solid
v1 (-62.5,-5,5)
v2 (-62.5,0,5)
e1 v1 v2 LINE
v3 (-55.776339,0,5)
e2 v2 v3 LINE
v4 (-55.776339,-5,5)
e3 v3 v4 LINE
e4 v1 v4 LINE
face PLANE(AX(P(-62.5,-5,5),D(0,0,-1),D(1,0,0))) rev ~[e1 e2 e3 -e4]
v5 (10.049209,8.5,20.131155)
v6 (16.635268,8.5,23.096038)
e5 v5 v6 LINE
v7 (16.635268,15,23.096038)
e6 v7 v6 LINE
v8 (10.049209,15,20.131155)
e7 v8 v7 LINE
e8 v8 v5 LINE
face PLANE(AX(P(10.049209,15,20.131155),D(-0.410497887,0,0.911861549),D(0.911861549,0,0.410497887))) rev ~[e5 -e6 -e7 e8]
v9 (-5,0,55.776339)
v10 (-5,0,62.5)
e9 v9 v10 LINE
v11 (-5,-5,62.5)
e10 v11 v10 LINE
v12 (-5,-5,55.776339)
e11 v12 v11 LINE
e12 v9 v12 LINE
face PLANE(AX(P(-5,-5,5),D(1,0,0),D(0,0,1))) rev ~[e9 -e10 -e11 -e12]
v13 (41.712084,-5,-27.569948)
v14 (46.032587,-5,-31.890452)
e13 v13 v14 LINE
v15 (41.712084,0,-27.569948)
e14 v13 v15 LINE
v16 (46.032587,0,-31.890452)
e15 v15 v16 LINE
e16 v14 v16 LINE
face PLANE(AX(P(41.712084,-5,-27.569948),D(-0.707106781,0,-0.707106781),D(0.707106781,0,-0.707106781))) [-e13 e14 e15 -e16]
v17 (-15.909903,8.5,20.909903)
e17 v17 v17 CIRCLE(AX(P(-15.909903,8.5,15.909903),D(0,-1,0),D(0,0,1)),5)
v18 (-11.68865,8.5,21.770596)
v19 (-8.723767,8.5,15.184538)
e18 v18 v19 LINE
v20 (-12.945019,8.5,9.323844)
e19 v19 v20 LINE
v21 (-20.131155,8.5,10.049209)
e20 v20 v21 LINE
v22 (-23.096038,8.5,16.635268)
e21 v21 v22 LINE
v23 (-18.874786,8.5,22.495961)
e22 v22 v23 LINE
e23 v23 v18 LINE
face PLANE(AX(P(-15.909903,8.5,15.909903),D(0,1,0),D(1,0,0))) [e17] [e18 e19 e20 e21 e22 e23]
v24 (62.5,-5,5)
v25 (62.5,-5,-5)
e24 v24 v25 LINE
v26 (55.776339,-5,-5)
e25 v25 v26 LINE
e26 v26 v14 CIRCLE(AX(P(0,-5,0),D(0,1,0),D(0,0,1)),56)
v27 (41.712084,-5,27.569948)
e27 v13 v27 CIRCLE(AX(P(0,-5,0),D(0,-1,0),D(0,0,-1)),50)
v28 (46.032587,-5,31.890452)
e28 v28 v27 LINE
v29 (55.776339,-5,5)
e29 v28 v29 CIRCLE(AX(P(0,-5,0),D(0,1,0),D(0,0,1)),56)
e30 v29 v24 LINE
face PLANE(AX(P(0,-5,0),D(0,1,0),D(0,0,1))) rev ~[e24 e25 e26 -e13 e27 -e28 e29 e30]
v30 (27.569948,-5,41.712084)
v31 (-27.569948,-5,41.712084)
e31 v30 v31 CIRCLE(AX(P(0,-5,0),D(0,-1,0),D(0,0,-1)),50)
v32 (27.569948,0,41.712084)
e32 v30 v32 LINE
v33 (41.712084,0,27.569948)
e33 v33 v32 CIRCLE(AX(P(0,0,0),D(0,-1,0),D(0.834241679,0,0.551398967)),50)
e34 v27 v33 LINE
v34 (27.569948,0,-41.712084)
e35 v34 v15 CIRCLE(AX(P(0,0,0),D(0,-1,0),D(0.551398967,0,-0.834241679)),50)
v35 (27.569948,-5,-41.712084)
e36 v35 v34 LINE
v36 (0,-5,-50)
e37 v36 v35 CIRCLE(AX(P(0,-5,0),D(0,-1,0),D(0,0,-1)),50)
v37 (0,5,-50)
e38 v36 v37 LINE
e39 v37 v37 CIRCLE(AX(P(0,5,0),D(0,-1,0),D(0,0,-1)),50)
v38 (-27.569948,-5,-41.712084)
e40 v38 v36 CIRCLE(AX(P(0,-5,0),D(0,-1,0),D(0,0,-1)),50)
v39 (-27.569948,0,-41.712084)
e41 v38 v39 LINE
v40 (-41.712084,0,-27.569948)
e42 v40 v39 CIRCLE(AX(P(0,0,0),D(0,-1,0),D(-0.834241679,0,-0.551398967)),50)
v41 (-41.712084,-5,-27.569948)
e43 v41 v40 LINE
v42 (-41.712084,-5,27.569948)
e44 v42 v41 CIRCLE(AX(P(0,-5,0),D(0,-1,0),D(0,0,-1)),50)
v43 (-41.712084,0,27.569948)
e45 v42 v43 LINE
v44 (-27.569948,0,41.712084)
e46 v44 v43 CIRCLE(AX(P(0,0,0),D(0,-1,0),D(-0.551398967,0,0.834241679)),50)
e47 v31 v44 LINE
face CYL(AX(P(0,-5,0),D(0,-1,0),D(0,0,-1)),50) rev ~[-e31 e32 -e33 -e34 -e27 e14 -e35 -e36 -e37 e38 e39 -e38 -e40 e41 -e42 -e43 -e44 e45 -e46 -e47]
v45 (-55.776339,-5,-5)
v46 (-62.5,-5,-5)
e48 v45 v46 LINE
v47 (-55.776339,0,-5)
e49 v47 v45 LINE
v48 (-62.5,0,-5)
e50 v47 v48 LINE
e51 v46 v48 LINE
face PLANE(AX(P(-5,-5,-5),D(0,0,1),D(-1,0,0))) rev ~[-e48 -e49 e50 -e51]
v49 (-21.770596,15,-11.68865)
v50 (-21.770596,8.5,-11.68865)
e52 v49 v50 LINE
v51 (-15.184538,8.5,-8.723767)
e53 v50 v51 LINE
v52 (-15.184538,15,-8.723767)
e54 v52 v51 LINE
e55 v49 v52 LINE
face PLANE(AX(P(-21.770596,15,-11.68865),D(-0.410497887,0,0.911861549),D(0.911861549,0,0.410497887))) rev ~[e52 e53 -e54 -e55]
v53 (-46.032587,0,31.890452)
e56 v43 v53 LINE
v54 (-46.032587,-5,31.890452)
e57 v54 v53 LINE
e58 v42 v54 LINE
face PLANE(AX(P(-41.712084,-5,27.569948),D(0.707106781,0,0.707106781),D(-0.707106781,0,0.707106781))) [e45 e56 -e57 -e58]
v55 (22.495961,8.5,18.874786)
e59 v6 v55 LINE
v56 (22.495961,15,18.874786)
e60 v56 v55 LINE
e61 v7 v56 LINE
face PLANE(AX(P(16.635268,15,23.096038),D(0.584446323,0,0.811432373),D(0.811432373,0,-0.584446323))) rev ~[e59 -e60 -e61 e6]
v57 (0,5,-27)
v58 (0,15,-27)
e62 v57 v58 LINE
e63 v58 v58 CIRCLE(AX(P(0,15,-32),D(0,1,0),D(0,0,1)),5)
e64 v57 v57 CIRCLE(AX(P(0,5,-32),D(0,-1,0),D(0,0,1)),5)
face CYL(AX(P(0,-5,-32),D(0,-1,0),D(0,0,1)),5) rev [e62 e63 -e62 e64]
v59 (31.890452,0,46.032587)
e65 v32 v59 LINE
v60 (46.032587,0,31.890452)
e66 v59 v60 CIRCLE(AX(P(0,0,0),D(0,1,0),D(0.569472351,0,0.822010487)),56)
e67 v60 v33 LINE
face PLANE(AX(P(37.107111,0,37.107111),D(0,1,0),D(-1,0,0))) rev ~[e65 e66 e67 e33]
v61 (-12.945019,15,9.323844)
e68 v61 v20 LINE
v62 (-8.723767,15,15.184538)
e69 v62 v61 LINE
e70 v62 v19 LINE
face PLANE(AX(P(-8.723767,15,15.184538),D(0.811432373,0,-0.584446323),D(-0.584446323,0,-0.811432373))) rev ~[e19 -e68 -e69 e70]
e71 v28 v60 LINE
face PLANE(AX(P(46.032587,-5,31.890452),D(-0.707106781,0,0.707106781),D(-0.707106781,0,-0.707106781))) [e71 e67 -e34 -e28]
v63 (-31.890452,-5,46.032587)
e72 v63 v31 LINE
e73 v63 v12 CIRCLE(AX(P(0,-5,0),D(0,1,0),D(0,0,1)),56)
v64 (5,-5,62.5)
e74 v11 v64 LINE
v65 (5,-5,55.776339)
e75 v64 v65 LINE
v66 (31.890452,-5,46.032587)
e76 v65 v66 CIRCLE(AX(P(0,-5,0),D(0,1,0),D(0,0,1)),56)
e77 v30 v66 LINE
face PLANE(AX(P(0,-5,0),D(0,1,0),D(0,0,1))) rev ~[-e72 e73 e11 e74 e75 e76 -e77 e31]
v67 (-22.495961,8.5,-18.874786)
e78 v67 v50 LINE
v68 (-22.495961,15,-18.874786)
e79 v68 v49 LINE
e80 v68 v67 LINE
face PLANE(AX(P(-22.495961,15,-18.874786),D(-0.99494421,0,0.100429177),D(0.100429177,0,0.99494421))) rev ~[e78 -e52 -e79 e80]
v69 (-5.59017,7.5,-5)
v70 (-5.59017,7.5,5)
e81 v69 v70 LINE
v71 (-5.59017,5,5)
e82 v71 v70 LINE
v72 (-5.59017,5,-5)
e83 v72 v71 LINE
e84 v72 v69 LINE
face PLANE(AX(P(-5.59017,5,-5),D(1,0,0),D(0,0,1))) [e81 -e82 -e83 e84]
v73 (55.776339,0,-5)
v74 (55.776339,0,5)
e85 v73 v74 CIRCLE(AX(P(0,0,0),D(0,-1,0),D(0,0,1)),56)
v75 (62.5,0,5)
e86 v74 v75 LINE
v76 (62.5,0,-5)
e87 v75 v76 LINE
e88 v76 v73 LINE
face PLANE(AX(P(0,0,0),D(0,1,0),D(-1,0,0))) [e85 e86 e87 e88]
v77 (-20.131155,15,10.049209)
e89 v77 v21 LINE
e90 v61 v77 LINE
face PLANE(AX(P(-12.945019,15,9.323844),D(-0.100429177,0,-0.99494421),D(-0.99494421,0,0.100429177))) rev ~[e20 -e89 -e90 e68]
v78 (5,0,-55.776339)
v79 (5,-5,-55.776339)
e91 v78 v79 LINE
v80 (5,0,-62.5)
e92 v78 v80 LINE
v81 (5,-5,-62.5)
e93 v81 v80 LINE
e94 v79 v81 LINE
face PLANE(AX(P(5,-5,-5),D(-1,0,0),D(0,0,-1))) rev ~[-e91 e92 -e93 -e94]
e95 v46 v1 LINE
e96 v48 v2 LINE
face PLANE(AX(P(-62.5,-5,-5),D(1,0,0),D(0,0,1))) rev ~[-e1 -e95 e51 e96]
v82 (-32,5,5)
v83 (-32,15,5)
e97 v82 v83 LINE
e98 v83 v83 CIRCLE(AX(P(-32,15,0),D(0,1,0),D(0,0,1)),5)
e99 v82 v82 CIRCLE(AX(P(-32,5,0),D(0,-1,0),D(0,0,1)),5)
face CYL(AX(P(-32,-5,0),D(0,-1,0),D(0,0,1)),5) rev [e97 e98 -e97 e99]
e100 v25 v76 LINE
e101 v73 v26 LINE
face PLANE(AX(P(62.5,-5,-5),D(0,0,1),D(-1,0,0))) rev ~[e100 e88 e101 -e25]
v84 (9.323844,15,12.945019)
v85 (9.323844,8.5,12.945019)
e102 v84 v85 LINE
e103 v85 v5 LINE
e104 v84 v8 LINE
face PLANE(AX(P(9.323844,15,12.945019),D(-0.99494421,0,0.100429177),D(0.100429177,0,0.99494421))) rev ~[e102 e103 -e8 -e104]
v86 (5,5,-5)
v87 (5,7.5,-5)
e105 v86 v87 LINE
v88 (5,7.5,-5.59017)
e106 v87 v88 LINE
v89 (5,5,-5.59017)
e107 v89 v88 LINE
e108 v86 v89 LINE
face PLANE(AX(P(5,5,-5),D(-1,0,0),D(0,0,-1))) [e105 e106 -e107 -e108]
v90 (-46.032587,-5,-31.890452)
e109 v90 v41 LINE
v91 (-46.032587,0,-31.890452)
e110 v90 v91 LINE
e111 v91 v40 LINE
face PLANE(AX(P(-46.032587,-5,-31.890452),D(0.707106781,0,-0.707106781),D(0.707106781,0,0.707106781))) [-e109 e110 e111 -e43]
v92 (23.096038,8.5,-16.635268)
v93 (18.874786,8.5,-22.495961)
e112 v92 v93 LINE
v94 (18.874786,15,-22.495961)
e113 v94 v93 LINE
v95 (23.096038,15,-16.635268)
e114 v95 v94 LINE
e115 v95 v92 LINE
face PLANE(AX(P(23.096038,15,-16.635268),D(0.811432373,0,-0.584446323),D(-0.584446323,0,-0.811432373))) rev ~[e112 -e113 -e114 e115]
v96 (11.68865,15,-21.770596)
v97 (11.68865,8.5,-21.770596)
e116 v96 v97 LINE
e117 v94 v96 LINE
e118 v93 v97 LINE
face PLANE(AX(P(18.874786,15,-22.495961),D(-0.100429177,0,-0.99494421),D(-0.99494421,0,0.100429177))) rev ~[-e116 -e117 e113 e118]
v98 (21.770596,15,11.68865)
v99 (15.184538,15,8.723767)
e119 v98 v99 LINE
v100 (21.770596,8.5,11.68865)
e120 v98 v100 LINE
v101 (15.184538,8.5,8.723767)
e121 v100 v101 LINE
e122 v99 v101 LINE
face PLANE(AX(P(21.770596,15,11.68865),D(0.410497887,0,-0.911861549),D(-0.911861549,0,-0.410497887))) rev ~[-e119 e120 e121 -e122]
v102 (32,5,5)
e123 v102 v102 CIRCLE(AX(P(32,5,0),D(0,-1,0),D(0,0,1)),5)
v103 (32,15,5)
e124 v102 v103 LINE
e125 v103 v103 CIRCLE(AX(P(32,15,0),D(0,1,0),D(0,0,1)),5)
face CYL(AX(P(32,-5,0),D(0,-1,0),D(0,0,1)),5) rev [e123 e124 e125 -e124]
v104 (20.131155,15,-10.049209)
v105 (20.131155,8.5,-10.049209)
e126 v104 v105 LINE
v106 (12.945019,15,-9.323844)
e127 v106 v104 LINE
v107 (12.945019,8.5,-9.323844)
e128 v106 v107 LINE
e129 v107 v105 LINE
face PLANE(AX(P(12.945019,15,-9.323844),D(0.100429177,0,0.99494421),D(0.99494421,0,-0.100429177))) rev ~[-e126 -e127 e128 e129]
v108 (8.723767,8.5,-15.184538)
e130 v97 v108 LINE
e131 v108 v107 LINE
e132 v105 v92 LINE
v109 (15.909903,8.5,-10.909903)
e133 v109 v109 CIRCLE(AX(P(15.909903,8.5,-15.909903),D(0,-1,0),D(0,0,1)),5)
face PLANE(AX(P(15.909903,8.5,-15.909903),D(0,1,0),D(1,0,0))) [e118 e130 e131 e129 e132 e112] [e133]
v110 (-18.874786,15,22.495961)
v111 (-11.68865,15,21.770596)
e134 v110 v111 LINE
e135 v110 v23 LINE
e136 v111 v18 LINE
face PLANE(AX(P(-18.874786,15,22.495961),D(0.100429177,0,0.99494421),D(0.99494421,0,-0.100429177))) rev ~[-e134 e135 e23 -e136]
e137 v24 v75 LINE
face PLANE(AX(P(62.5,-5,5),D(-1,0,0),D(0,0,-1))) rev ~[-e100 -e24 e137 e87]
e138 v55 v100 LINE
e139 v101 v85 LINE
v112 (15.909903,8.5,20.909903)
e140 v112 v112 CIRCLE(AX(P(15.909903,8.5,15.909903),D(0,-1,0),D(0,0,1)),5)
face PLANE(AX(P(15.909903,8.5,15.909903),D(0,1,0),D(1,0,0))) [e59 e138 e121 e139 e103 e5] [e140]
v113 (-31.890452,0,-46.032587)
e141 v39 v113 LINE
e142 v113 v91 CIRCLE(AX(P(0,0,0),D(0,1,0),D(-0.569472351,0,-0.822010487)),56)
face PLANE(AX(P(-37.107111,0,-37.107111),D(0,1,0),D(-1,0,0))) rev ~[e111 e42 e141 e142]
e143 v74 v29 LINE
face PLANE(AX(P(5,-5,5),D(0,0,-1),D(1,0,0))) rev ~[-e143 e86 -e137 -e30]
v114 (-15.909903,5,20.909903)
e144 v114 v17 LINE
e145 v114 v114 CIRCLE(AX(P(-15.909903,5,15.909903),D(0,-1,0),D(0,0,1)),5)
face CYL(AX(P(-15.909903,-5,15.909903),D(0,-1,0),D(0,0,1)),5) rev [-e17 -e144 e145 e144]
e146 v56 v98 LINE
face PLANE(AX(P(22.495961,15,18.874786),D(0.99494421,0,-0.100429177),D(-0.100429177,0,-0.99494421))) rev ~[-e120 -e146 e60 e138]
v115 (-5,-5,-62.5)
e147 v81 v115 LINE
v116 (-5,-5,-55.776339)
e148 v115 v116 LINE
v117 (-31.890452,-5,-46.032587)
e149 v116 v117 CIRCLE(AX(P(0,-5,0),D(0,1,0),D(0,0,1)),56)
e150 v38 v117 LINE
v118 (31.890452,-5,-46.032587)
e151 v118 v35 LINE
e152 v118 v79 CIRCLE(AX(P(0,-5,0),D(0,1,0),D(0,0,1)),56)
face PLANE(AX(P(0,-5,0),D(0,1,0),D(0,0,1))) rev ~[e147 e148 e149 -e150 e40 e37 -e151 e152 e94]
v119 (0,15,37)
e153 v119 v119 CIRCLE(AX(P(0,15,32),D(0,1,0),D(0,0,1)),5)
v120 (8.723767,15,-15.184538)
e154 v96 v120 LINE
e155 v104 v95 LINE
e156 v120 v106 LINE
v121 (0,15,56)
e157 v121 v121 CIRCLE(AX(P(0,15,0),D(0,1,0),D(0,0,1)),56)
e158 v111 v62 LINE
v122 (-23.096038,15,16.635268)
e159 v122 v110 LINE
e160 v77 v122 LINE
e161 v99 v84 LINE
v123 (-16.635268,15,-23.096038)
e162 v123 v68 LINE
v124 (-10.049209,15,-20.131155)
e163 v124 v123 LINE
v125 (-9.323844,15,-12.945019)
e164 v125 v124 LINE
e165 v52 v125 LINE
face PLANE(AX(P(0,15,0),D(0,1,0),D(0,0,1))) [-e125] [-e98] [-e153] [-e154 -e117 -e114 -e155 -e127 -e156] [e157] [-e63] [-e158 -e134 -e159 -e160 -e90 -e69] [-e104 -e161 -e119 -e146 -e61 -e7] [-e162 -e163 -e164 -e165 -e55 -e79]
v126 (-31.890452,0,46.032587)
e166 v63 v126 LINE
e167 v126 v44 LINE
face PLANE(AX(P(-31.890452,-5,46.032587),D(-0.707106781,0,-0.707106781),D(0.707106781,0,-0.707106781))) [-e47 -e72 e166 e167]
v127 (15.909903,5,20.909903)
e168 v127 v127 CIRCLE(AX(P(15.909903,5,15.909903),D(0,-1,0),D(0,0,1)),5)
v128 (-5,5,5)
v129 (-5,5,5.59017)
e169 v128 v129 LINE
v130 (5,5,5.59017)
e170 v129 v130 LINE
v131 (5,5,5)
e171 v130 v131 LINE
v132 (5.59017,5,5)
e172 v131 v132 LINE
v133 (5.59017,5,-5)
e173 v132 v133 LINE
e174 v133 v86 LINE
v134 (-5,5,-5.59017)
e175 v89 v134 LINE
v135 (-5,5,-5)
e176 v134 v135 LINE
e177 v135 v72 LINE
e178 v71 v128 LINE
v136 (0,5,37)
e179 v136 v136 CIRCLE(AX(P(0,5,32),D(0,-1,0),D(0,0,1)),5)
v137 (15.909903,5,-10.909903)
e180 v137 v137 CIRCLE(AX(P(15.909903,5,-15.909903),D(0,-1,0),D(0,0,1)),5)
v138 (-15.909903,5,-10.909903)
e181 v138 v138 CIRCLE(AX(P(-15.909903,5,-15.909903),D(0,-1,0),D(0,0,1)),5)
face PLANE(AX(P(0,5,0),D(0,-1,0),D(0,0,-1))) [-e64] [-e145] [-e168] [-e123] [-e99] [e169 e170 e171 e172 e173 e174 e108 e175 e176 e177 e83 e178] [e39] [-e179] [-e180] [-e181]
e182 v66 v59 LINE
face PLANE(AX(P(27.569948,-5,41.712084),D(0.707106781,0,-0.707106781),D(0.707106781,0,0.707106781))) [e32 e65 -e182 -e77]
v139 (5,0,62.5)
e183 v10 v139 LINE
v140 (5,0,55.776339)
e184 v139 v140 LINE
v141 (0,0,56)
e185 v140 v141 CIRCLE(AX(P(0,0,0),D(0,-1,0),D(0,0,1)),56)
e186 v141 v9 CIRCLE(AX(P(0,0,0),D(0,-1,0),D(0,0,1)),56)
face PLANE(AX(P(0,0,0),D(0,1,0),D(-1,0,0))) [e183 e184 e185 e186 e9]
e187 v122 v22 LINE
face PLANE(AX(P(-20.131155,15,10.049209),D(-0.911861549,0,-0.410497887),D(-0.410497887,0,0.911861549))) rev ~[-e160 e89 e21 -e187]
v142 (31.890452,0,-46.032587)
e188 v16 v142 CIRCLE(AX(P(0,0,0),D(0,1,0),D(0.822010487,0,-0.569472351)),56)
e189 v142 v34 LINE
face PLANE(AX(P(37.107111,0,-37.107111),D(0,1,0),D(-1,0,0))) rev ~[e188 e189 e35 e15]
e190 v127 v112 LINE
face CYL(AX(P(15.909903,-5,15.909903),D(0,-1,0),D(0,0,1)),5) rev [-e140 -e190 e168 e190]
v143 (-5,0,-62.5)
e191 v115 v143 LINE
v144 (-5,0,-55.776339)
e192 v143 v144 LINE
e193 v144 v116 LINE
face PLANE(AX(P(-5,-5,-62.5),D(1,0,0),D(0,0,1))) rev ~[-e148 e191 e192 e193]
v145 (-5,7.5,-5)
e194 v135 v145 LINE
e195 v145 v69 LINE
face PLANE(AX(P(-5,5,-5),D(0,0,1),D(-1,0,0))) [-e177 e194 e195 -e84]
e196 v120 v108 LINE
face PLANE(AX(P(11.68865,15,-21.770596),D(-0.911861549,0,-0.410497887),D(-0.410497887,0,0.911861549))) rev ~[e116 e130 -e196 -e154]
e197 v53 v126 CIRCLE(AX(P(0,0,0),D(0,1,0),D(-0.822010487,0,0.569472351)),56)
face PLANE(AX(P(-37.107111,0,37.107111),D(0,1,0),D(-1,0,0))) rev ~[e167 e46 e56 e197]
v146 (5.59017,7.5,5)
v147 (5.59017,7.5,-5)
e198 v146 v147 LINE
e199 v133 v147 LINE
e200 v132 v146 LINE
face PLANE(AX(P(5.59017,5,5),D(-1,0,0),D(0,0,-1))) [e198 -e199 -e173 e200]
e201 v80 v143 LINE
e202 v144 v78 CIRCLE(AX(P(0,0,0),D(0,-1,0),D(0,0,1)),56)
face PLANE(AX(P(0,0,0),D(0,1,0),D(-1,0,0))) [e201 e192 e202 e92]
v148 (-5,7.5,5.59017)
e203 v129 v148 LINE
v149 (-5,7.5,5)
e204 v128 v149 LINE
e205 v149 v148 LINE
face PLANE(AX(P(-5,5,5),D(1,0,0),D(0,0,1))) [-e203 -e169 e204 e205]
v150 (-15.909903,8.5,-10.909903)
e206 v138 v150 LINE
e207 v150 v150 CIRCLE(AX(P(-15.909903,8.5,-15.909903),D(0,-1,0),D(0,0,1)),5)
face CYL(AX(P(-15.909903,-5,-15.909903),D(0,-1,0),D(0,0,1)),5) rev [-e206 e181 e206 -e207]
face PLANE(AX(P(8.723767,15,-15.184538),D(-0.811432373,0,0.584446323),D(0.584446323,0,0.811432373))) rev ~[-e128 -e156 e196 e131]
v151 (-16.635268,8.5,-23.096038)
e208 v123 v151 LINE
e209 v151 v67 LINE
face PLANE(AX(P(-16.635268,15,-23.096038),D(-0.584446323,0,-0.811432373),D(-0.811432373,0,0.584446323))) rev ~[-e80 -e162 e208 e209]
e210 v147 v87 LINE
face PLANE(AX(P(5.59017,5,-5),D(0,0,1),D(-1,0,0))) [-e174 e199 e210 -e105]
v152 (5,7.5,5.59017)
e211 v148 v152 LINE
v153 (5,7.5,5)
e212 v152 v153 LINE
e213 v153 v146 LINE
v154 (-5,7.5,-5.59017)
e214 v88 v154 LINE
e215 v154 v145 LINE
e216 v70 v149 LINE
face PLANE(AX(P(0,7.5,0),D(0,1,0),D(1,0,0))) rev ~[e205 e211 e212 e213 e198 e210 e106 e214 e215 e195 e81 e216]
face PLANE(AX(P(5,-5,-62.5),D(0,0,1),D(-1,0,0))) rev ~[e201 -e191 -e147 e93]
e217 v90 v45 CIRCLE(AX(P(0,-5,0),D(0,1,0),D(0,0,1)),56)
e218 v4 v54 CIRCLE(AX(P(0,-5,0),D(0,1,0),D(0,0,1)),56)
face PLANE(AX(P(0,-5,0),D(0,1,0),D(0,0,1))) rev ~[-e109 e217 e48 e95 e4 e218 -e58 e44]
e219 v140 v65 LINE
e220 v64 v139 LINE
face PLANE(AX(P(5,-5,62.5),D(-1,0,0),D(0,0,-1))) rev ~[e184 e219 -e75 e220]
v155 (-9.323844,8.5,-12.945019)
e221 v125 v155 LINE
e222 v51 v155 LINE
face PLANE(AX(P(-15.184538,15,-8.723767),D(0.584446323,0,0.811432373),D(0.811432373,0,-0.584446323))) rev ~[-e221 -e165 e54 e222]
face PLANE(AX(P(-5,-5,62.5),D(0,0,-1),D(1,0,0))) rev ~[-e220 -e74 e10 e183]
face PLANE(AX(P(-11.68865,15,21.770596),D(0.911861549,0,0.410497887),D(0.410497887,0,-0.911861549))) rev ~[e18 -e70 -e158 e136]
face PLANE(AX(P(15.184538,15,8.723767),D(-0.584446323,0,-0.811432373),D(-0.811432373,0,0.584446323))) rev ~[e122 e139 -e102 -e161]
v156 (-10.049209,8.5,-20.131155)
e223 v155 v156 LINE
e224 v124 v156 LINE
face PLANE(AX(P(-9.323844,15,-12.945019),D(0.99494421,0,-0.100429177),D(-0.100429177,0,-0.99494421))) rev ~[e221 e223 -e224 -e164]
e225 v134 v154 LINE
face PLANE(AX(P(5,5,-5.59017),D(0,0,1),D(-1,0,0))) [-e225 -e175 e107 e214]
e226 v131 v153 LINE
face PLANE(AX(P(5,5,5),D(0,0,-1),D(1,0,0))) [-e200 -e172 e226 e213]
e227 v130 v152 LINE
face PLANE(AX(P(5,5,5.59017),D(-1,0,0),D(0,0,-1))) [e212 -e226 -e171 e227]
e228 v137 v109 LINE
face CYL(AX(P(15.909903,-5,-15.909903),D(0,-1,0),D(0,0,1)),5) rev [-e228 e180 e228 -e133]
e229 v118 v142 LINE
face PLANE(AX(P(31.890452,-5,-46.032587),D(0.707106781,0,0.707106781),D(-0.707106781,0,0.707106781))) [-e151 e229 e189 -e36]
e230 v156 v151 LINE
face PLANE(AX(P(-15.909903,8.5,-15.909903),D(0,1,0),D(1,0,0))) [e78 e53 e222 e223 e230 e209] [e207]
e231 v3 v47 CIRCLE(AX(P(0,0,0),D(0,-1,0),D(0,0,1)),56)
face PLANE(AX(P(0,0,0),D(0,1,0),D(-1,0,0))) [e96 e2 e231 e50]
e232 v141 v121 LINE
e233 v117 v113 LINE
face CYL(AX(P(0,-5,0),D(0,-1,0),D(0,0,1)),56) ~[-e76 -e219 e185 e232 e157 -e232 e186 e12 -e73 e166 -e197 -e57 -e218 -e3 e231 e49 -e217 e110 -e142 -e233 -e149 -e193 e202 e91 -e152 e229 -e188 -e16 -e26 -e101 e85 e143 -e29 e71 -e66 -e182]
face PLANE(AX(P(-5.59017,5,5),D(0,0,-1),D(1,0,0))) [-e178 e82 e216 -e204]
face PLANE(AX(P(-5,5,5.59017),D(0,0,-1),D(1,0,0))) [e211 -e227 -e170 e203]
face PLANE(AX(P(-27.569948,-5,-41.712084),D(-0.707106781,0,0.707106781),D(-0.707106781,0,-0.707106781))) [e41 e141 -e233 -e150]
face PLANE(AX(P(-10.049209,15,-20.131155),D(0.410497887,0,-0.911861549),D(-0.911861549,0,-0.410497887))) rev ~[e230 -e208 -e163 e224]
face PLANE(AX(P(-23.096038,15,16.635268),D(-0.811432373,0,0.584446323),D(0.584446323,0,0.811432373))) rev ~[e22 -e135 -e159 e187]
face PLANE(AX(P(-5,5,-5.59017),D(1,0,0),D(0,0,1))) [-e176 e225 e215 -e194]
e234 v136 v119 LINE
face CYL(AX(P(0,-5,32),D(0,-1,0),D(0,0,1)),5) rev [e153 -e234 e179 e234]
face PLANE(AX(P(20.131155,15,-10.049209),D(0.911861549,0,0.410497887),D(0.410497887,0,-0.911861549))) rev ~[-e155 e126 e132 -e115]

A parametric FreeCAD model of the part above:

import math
import FreeCAD as App
import Part
import Sketcher
Q = App.Units.Quantity

doc = App.newDocument("Part")
params = doc.addObject("Spreadsheet::Sheet", "Params")
for row, (alias, value) in enumerate([
    ("sketch1_diameter", "112 mm"),
    ("sketch1_diameter2", "10 mm"),
    ("pad1_length", "15 mm"),
    ("pad1_length2", "5 mm"),
    ("sketch2_width", "10 mm"),
    ("sketch2_width2", "57.5 mm"),
    ("pad2_length", "5 mm"),
    ("sketch3_diameter", "100 mm"),
    ("pocket1_length", "10 mm"),
    ("sketch4_radius", "50 mm"),
    ("sketch4_radius2", "56 mm"),
    ("pocket2_length", "5 mm"),
    ("sketch5_width", "10 mm"),
    ("pocket3_length", "2.5 mm"),
    ("pocket4_length", "6.5 mm"),
], start=1):
    params.set(f"A{row}", alias)
    params.set(f"B{row}", "=" + value)
    params.setAlias(f"B{row}", alias)

body = doc.addObject("PartDesign::Body", "Body")

# Sketch on XZ plane
sketch1 = doc.addObject("Sketcher::SketchObject", "Sketch")
body.addObject(sketch1)
sketch1.AttachmentSupport = (doc.XZ_Plane, [""])
sketch1.MapMode = "FlatFace"
sketch1.addGeometry(Part.Circle(App.Vector(0, 0, 0), App.Vector(0, 0, 1), 56), False)
sketch1.addGeometry(Part.Circle(App.Vector(-16, -16, 0), App.Vector(0, 0, 1), 5), False)
sketch1.addGeometry(Part.Circle(App.Vector(-32, 0, 0), App.Vector(0, 0, 1), 5), False)
sketch1.addGeometry(Part.Circle(App.Vector(-16, 16, 0), App.Vector(0, 0, 1), 5), False)
sketch1.addGeometry(Part.Circle(App.Vector(0, -32, 0), App.Vector(0, 0, 1), 5), False)
sketch1.addGeometry(Part.Circle(App.Vector(16, -16, 0), App.Vector(0, 0, 1), 5), False)
sketch1.addGeometry(Part.Circle(App.Vector(32, 0, 0), App.Vector(0, 0, 1), 5), False)
sketch1.addGeometry(Part.Circle(App.Vector(16, 16, 0), App.Vector(0, 0, 1), 5), False)
sketch1.addGeometry(Part.Circle(App.Vector(0, 32, 0), App.Vector(0, 0, 1), 5), False)
sketch1.addConstraint(Sketcher.Constraint("Coincident", 0, 3, -1, 1))
sketch1.addConstraint(Sketcher.Constraint("Equal", 1, 2))
sketch1.addConstraint(Sketcher.Constraint("Equal", 2, 3))
sketch1.addConstraint(Sketcher.Constraint("Equal", 3, 4))
sketch1.addConstraint(Sketcher.Constraint("Equal", 4, 5))
sketch1.addConstraint(Sketcher.Constraint("Equal", 5, 6))
sketch1.addConstraint(Sketcher.Constraint("Equal", 6, 7))
sketch1.addConstraint(Sketcher.Constraint("Equal", 7, 8))
sketch1.addConstraint(Sketcher.Constraint("Symmetric", 3, 3, 5, 3, -1, 1))
sketch1.addConstraint(Sketcher.Constraint("Symmetric", 2, 3, 6, 3, -1, 1))
sketch1.addConstraint(Sketcher.Constraint("Symmetric", 1, 3, 7, 3, -1, 1))
sketch1.addConstraint(Sketcher.Constraint("Symmetric", 4, 3, 8, 3, -1, 1))
sketch1.addConstraint(Sketcher.Constraint("Symmetric", 1, 3, 5, 3, -2))
sketch1.addConstraint(Sketcher.Constraint("PointOnObject", 2, 3, -1))
sketch1.addConstraint(Sketcher.Constraint("PointOnObject", 4, 3, -2))
sketch1.addConstraint(Sketcher.Constraint("Diameter", 0, Q("112 mm")))
sketch1.addConstraint(Sketcher.Constraint("Diameter", 1, Q("10 mm")))
sketch1.addConstraint(Sketcher.Constraint("DistanceX", 2, 3, -1, 1, Q("32 mm")))
sketch1.addConstraint(Sketcher.Constraint("DistanceY", 4, 3, -1, 1, Q("32 mm")))
sketch1.addConstraint(Sketcher.Constraint("DistanceX", 1, 3, -1, 1, Q("15.909903 mm")))
sketch1.addConstraint(Sketcher.Constraint("DistanceY", 1, 3, -1, 1, Q("15.909903 mm")))
sketch1.setExpression("Constraints[15]", "Params.sketch1_diameter")
sketch1.setExpression("Constraints[16]", "Params.sketch1_diameter2")
pad1 = doc.addObject("PartDesign::Pad", "Pad")
body.addObject(pad1)
pad1.Profile = sketch1
pad1.Type = "TwoLengths"
pad1.setExpression("Length", "Params.pad1_length")
pad1.setExpression("Length2", "Params.pad1_length2")
pad1.Reversed = True

# Sketch on XZ plane
sketch2 = doc.addObject("Sketcher::SketchObject", "Sketch001")
body.addObject(sketch2)
sketch2.AttachmentSupport = (doc.XZ_Plane, [""])
sketch2.MapMode = "FlatFace"
sketch2.AttachmentOffset = App.Placement(App.Vector(0, 0, 5), App.Rotation())
sketch2.addGeometry(Part.LineSegment(App.Vector(-5, 62, 0), App.Vector(-5, 5, 0)), False)
sketch2.addGeometry(Part.LineSegment(App.Vector(-5, 5, 0), App.Vector(-62, 5, 0)), False)
sketch2.addGeometry(Part.LineSegment(App.Vector(-62, 5, 0), App.Vector(-62, -5, 0)), False)
sketch2.addGeometry(Part.LineSegment(App.Vector(-62, -5, 0), App.Vector(-5, -5, 0)), False)
sketch2.addGeometry(Part.LineSegment(App.Vector(-5, -5, 0), App.Vector(-5, -62, 0)), False)
sketch2.addGeometry(Part.LineSegment(App.Vector(-5, -62, 0), App.Vector(5, -62, 0)), False)
sketch2.addGeometry(Part.LineSegment(App.Vector(5, -62, 0), App.Vector(5, -5, 0)), False)
sketch2.addGeometry(Part.LineSegment(App.Vector(5, -5, 0), App.Vector(62, -5, 0)), False)
sketch2.addGeometry(Part.LineSegment(App.Vector(62, -5, 0), App.Vector(62, 5, 0)), False)
sketch2.addGeometry(Part.LineSegment(App.Vector(62, 5, 0), App.Vector(5, 5, 0)), False)
sketch2.addGeometry(Part.LineSegment(App.Vector(5, 5, 0), App.Vector(5, 62, 0)), False)
sketch2.addGeometry(Part.LineSegment(App.Vector(5, 62, 0), App.Vector(-5, 62, 0)), False)
sketch2.addConstraint(Sketcher.Constraint("Coincident", 0, 2, 1, 1))
sketch2.addConstraint(Sketcher.Constraint("Coincident", 1, 2, 2, 1))
sketch2.addConstraint(Sketcher.Constraint("Coincident", 2, 2, 3, 1))
sketch2.addConstraint(Sketcher.Constraint("Coincident", 3, 2, 4, 1))
sketch2.addConstraint(Sketcher.Constraint("Coincident", 4, 2, 5, 1))
sketch2.addConstraint(Sketcher.Constraint("Coincident", 5, 2, 6, 1))
sketch2.addConstraint(Sketcher.Constraint("Coincident", 6, 2, 7, 1))
sketch2.addConstraint(Sketcher.Constraint("Coincident", 7, 2, 8, 1))
sketch2.addConstraint(Sketcher.Constraint("Coincident", 8, 2, 9, 1))
sketch2.addConstraint(Sketcher.Constraint("Coincident", 9, 2, 10, 1))
sketch2.addConstraint(Sketcher.Constraint("Coincident", 10, 2, 11, 1))
sketch2.addConstraint(Sketcher.Constraint("Coincident", 11, 2, 0, 1))
sketch2.addConstraint(Sketcher.Constraint("Vertical", 0))
sketch2.addConstraint(Sketcher.Constraint("Horizontal", 1))
sketch2.addConstraint(Sketcher.Constraint("Vertical", 2))
sketch2.addConstraint(Sketcher.Constraint("Horizontal", 3))
sketch2.addConstraint(Sketcher.Constraint("Vertical", 4))
sketch2.addConstraint(Sketcher.Constraint("Horizontal", 5))
sketch2.addConstraint(Sketcher.Constraint("Vertical", 6))
sketch2.addConstraint(Sketcher.Constraint("Horizontal", 7))
sketch2.addConstraint(Sketcher.Constraint("Vertical", 8))
sketch2.addConstraint(Sketcher.Constraint("Horizontal", 9))
sketch2.addConstraint(Sketcher.Constraint("Vertical", 10))
sketch2.addConstraint(Sketcher.Constraint("Horizontal", 11))
sketch2.addConstraint(Sketcher.Constraint("Symmetric", 0, 2, 6, 2, -1, 1))
sketch2.addConstraint(Sketcher.Constraint("Symmetric", 2, 2, 8, 2, -1, 1))
sketch2.addConstraint(Sketcher.Constraint("Symmetric", 4, 2, 10, 2, -1, 1))
sketch2.addConstraint(Sketcher.Constraint("Symmetric", 3, 2, 6, 2, -2))
sketch2.addConstraint(Sketcher.Constraint("Equal", 9, 0))
sketch2.addConstraint(Sketcher.Constraint("Equal", 11, 2))
sketch2.addConstraint(Sketcher.Constraint("DistanceX", 5, 1, 5, 2, Q("10 mm")))
sketch2.addConstraint(Sketcher.Constraint("DistanceX", 1, 2, 1, 1, Q("57.5 mm")))
sketch2.setExpression("Constraints[30]", "Params.sketch2_width")
sketch2.setExpression("Constraints[31]", "Params.sketch2_width2")
pad2 = doc.addObject("PartDesign::Pad", "Pad001")
body.addObject(pad2)
pad2.Profile = sketch2
pad2.setExpression("Length", "Params.pad2_length")
pad2.Reversed = True

# Sketch on XZ plane
sketch3 = doc.addObject("Sketcher::SketchObject", "Sketch002")
body.addObject(sketch3)
sketch3.AttachmentSupport = (doc.XZ_Plane, [""])
sketch3.MapMode = "FlatFace"
sketch3.AttachmentOffset = App.Placement(App.Vector(0, 0, 5), App.Rotation())
sketch3.addGeometry(Part.Circle(App.Vector(0, 0, 0), App.Vector(0, 0, 1), 50), False)
sketch3.addConstraint(Sketcher.Constraint("Coincident", 0, 3, -1, 1))
sketch3.addConstraint(Sketcher.Constraint("Diameter", 0, Q("100 mm")))
sketch3.setExpression("Constraints[1]", "Params.sketch3_diameter")
pocket1 = doc.addObject("PartDesign::Pocket", "Pocket")
body.addObject(pocket1)
pocket1.Profile = sketch3
pocket1.setExpression("Length", "Params.pocket1_length")

# Sketch on XZ plane
sketch4 = doc.addObject("Sketcher::SketchObject", "Sketch003")
body.addObject(sketch4)
sketch4.AttachmentSupport = (doc.XZ_Plane, [""])
sketch4.MapMode = "FlatFace"
sketch4.AttachmentOffset = App.Placement(App.Vector(0, 0, 5), App.Rotation())
sketch4.addGeometry(Part.LineSegment(App.Vector(32, 46, 0), App.Vector(28, 42, 0)), False)
sketch4.addGeometry(Part.ArcOfCircle(Part.Circle(App.Vector(0, 0, 0), App.Vector(0, 0, 1), 50), math.radians(33), math.radians(57)), False)
sketch4.addGeometry(Part.LineSegment(App.Vector(42, 28, 0), App.Vector(46, 32, 0)), False)
sketch4.addGeometry(Part.ArcOfCircle(Part.Circle(App.Vector(0, 0, 0), App.Vector(0, 0, 1), 56), math.radians(35), math.radians(55)), False)
sketch4.addGeometry(Part.LineSegment(App.Vector(46, -32, 0), App.Vector(42, -28, 0)), False)
sketch4.addGeometry(Part.ArcOfCircle(Part.Circle(App.Vector(0, 0, 0), App.Vector(0, 0, 1), 50), math.radians(-57), math.radians(-33)), False)
sketch4.addGeometry(Part.LineSegment(App.Vector(28, -42, 0), App.Vector(32, -46, 0)), False)
sketch4.addGeometry(Part.ArcOfCircle(Part.Circle(App.Vector(0, 0, 0), App.Vector(0, 0, 1), 56), math.radians(-55), math.radians(-35)), False)
sketch4.addGeometry(Part.LineSegment(App.Vector(-32, -46, 0), App.Vector(-28, -42, 0)), False)
sketch4.addGeometry(Part.ArcOfCircle(Part.Circle(App.Vector(0, 0, 0), App.Vector(0, 0, 1), 50), math.radians(-147), math.radians(-123)), False)
sketch4.addGeometry(Part.LineSegment(App.Vector(-42, -28, 0), App.Vector(-46, -32, 0)), False)
sketch4.addGeometry(Part.ArcOfCircle(Part.Circle(App.Vector(0, 0, 0), App.Vector(0, 0, 1), 56), math.radians(-145), math.radians(-125)), False)
sketch4.addGeometry(Part.LineSegment(App.Vector(-46, 32, 0), App.Vector(-42, 28, 0)), False)
sketch4.addGeometry(Part.ArcOfCircle(Part.Circle(App.Vector(0, 0, 0), App.Vector(0, 0, 1), 50), math.radians(123), math.radians(147)), False)
sketch4.addGeometry(Part.LineSegment(App.Vector(-28, 42, 0), App.Vector(-32, 46, 0)), False)
sketch4.addGeometry(Part.ArcOfCircle(Part.Circle(App.Vector(0, 0, 0), App.Vector(0, 0, 1), 56), math.radians(125), math.radians(145)), False)
sketch4.addConstraint(Sketcher.Constraint("Coincident", 0, 2, 1, 2))
sketch4.addConstraint(Sketcher.Constraint("Coincident", 1, 1, 2, 1))
sketch4.addConstraint(Sketcher.Constraint("Coincident", 2, 2, 3, 1))
sketch4.addConstraint(Sketcher.Constraint("Coincident", 3, 2, 0, 1))
sketch4.addConstraint(Sketcher.Constraint("Coincident", 4, 2, 5, 2))
sketch4.addConstraint(Sketcher.Constraint("Coincident", 5, 1, 6, 1))
sketch4.addConstraint(Sketcher.Constraint("Coincident", 6, 2, 7, 1))
sketch4.addConstraint(Sketcher.Constraint("Coincident", 7, 2, 4, 1))
sketch4.addConstraint(Sketcher.Constraint("Coincident", 8, 2, 9, 2))
sketch4.addConstraint(Sketcher.Constraint("Coincident", 9, 1, 10, 1))
sketch4.addConstraint(Sketcher.Constraint("Coincident", 10, 2, 11, 1))
sketch4.addConstraint(Sketcher.Constraint("Coincident", 11, 2, 8, 1))
sketch4.addConstraint(Sketcher.Constraint("Coincident", 12, 2, 13, 2))
sketch4.addConstraint(Sketcher.Constraint("Coincident", 13, 1, 14, 1))
sketch4.addConstraint(Sketcher.Constraint("Coincident", 14, 2, 15, 1))
sketch4.addConstraint(Sketcher.Constraint("Coincident", 15, 2, 12, 1))
sketch4.addConstraint(Sketcher.Constraint("Coincident", 1, 3, -1, 1))
sketch4.addConstraint(Sketcher.Constraint("Coincident", 3, 3, -1, 1))
sketch4.addConstraint(Sketcher.Constraint("Coincident", 5, 3, -1, 1))
sketch4.addConstraint(Sketcher.Constraint("Coincident", 7, 3, -1, 1))
sketch4.addConstraint(Sketcher.Constraint("Coincident", 9, 3, -1, 1))
sketch4.addConstraint(Sketcher.Constraint("Coincident", 11, 3, -1, 1))
sketch4.addConstraint(Sketcher.Constraint("Coincident", 13, 3, -1, 1))
sketch4.addConstraint(Sketcher.Constraint("Coincident", 15, 3, -1, 1))
sketch4.addConstraint(Sketcher.Constraint("Equal", 1, 5))
sketch4.addConstraint(Sketcher.Constraint("Equal", 3, 7))
sketch4.addConstraint(Sketcher.Constraint("Equal", 5, 9))
sketch4.addConstraint(Sketcher.Constraint("Equal", 7, 11))
sketch4.addConstraint(Sketcher.Constraint("Equal", 9, 13))
sketch4.addConstraint(Sketcher.Constraint("Equal", 11, 15))
sketch4.addConstraint(Sketcher.Constraint("Parallel", 0, 2))
sketch4.addConstraint(Sketcher.Constraint("Perpendicular", 2, 4))
sketch4.addConstraint(Sketcher.Constraint("Parallel", 4, 6))
sketch4.addConstraint(Sketcher.Constraint("Perpendicular", 6, 8))
sketch4.addConstraint(Sketcher.Constraint("Parallel", 8, 10))
sketch4.addConstraint(Sketcher.Constraint("Perpendicular", 10, 12))
sketch4.addConstraint(Sketcher.Constraint("Parallel", 12, 14))
sketch4.addConstraint(Sketcher.Constraint("Horizontal", 5, 1, 8, 2))
sketch4.addConstraint(Sketcher.Constraint("Horizontal", 4, 2, 9, 1))
sketch4.addConstraint(Sketcher.Constraint("Horizontal", 7, 2, 10, 2))
sketch4.addConstraint(Sketcher.Constraint("Horizontal", 1, 1, 12, 2))
sketch4.addConstraint(Sketcher.Constraint("Horizontal", 0, 2, 13, 1))
sketch4.addConstraint(Sketcher.Constraint("Vertical", 1, 1, 4, 2))
sketch4.addConstraint(Sketcher.Constraint("Vertical", 0, 2, 5, 1))
sketch4.addConstraint(Sketcher.Constraint("Equal", 0, 2))
sketch4.addConstraint(Sketcher.Constraint("Radius", 1, Q("50 mm")))
sketch4.addConstraint(Sketcher.Constraint("Radius", 3, Q("56 mm")))
sketch4.addConstraint(Sketcher.Constraint("DistanceX", -1, 1, 0, 2, Q("27.569948 mm")))
sketch4.setExpression("Constraints[45]", "Params.sketch4_radius")
sketch4.setExpression("Constraints[46]", "Params.sketch4_radius2")
pocket2 = doc.addObject("PartDesign::Pocket", "Pocket001")
body.addObject(pocket2)
pocket2.Profile = sketch4
pocket2.setExpression("Length", "Params.pocket2_length")

# Sketch on XZ plane
sketch5 = doc.addObject("Sketcher::SketchObject", "Sketch004")
body.addObject(sketch5)
sketch5.AttachmentSupport = (doc.XZ_Plane, [""])
sketch5.MapMode = "FlatFace"
sketch5.AttachmentOffset = App.Placement(App.Vector(0, 0, -5), App.Rotation())
sketch5.addGeometry(Part.LineSegment(App.Vector(-5, -5, 0), App.Vector(-5.6, -5, 0)), False)
sketch5.addGeometry(Part.LineSegment(App.Vector(-5.6, -5, 0), App.Vector(-5.6, 5, 0)), False)
sketch5.addGeometry(Part.LineSegment(App.Vector(-5.6, 5, 0), App.Vector(-5, 5, 0)), False)
sketch5.addGeometry(Part.LineSegment(App.Vector(-5, 5, 0), App.Vector(-5, 5.6, 0)), False)
sketch5.addGeometry(Part.LineSegment(App.Vector(-5, 5.6, 0), App.Vector(5, 5.6, 0)), False)
sketch5.addGeometry(Part.LineSegment(App.Vector(5, 5.6, 0), App.Vector(5, 5, 0)), False)
sketch5.addGeometry(Part.LineSegment(App.Vector(5, 5, 0), App.Vector(5.6, 5, 0)), False)
sketch5.addGeometry(Part.LineSegment(App.Vector(5.6, 5, 0), App.Vector(5.6, -5, 0)), False)
sketch5.addGeometry(Part.LineSegment(App.Vector(5.6, -5, 0), App.Vector(5, -5, 0)), False)
sketch5.addGeometry(Part.LineSegment(App.Vector(5, -5, 0), App.Vector(5, -5.6, 0)), False)
sketch5.addGeometry(Part.LineSegment(App.Vector(5, -5.6, 0), App.Vector(-5, -5.6, 0)), False)
sketch5.addGeometry(Part.LineSegment(App.Vector(-5, -5.6, 0), App.Vector(-5, -5, 0)), False)
sketch5.addConstraint(Sketcher.Constraint("Coincident", 0, 2, 1, 1))
sketch5.addConstraint(Sketcher.Constraint("Coincident", 1, 2, 2, 1))
sketch5.addConstraint(Sketcher.Constraint("Coincident", 2, 2, 3, 1))
sketch5.addConstraint(Sketcher.Constraint("Coincident", 3, 2, 4, 1))
sketch5.addConstraint(Sketcher.Constraint("Coincident", 4, 2, 5, 1))
sketch5.addConstraint(Sketcher.Constraint("Coincident", 5, 2, 6, 1))
sketch5.addConstraint(Sketcher.Constraint("Coincident", 6, 2, 7, 1))
sketch5.addConstraint(Sketcher.Constraint("Coincident", 7, 2, 8, 1))
sketch5.addConstraint(Sketcher.Constraint("Coincident", 8, 2, 9, 1))
sketch5.addConstraint(Sketcher.Constraint("Coincident", 9, 2, 10, 1))
sketch5.addConstraint(Sketcher.Constraint("Coincident", 10, 2, 11, 1))
sketch5.addConstraint(Sketcher.Constraint("Coincident", 11, 2, 0, 1))
sketch5.addConstraint(Sketcher.Constraint("Horizontal", 0))
sketch5.addConstraint(Sketcher.Constraint("Vertical", 1))
sketch5.addConstraint(Sketcher.Constraint("Horizontal", 2))
sketch5.addConstraint(Sketcher.Constraint("Vertical", 3))
sketch5.addConstraint(Sketcher.Constraint("Horizontal", 4))
sketch5.addConstraint(Sketcher.Constraint("Vertical", 5))
sketch5.addConstraint(Sketcher.Constraint("Horizontal", 6))
sketch5.addConstraint(Sketcher.Constraint("Vertical", 7))
sketch5.addConstraint(Sketcher.Constraint("Horizontal", 8))
sketch5.addConstraint(Sketcher.Constraint("Vertical", 9))
sketch5.addConstraint(Sketcher.Constraint("Horizontal", 10))
sketch5.addConstraint(Sketcher.Constraint("Vertical", 11))
sketch5.addConstraint(Sketcher.Constraint("Symmetric", 0, 2, 6, 2, -1, 1))
sketch5.addConstraint(Sketcher.Constraint("Symmetric", 2, 2, 8, 2, -1, 1))
sketch5.addConstraint(Sketcher.Constraint("Symmetric", 4, 2, 10, 2, -1, 1))
sketch5.addConstraint(Sketcher.Constraint("Symmetric", 2, 2, 5, 2, -2))
sketch5.addConstraint(Sketcher.Constraint("Equal", 10, 1))
sketch5.addConstraint(Sketcher.Constraint("Equal", 8, 3))
sketch5.addConstraint(Sketcher.Constraint("DistanceX", 4, 1, 4, 2, Q("10 mm")))
sketch5.addConstraint(Sketcher.Constraint("DistanceX", 0, 2, 0, 1, Q("0.59017 mm")))
sketch5.setExpression("Constraints[30]", "Params.sketch5_width")
pocket3 = doc.addObject("PartDesign::Pocket", "Pocket002")
body.addObject(pocket3)
pocket3.Profile = sketch5
pocket3.setExpression("Length", "Params.pocket3_length")

# Sketch on XZ plane
sketch6 = doc.addObject("Sketcher::SketchObject", "Sketch005")
body.addObject(sketch6)
sketch6.AttachmentSupport = (doc.XZ_Plane, [""])
sketch6.MapMode = "FlatFace"
sketch6.AttachmentOffset = App.Placement(App.Vector(0, 0, -15), App.Rotation())
sketch6.addGeometry(Part.LineSegment(App.Vector(12, -22, 0), App.Vector(9, -15, 0)), False)
sketch6.addGeometry(Part.LineSegment(App.Vector(9, -15, 0), App.Vector(13, -9, 0)), False)
sketch6.addGeometry(Part.LineSegment(App.Vector(13, -9, 0), App.Vector(20, -10, 0)), False)
sketch6.addGeometry(Part.LineSegment(App.Vector(20, -10, 0), App.Vector(23, -17, 0)), False)
sketch6.addGeometry(Part.LineSegment(App.Vector(23, -17, 0), App.Vector(19, -22, 0)), False)
sketch6.addGeometry(Part.LineSegment(App.Vector(19, -22, 0), App.Vector(12, -22, 0)), False)
sketch6.addGeometry(Part.LineSegment(App.Vector(-17, -23, 0), App.Vector(-22, -19, 0)), False)
sketch6.addGeometry(Part.LineSegment(App.Vector(-22, -19, 0), App.Vector(-22, -12, 0)), False)
sketch6.addGeometry(Part.LineSegment(App.Vector(-22, -12, 0), App.Vector(-15, -9, 0)), False)
sketch6.addGeometry(Part.LineSegment(App.Vector(-15, -9, 0), App.Vector(-9, -13, 0)), False)
sketch6.addGeometry(Part.LineSegment(App.Vector(-9, -13, 0), App.Vector(-10, -20, 0)), False)
sketch6.addGeometry(Part.LineSegment(App.Vector(-10, -20, 0), App.Vector(-17, -23, 0)), False)
sketch6.addGeometry(Part.LineSegment(App.Vector(22, 12, 0), App.Vector(15, 9, 0)), False)
sketch6.addGeometry(Part.LineSegment(App.Vector(15, 9, 0), App.Vector(9, 13, 0)), False)
sketch6.addGeometry(Part.LineSegment(App.Vector(9, 13, 0), App.Vector(10, 20, 0)), False)
sketch6.addGeometry(Part.LineSegment(App.Vector(10, 20, 0), App.Vector(17, 23, 0)), False)
sketch6.addGeometry(Part.LineSegment(App.Vector(17, 23, 0), App.Vector(22, 19, 0)), False)
sketch6.addGeometry(Part.LineSegment(App.Vector(22, 19, 0), App.Vector(22, 12, 0)), False)
sketch6.addGeometry(Part.LineSegment(App.Vector(-12, 22, 0), App.Vector(-9, 15, 0)), False)
sketch6.addGeometry(Part.LineSegment(App.Vector(-9, 15, 0), App.Vector(-13, 9, 0)), False)
sketch6.addGeometry(Part.LineSegment(App.Vector(-13, 9, 0), App.Vector(-20, 10, 0)), False)
sketch6.addGeometry(Part.LineSegment(App.Vector(-20, 10, 0), App.Vector(-23, 17, 0)), False)
sketch6.addGeometry(Part.LineSegment(App.Vector(-23, 17, 0), App.Vector(-19, 22, 0)), False)
sketch6.addGeometry(Part.LineSegment(App.Vector(-19, 22, 0), App.Vector(-12, 22, 0)), False)
sketch6.addConstraint(Sketcher.Constraint("Coincident", 0, 2, 1, 1))
sketch6.addConstraint(Sketcher.Constraint("Coincident", 1, 2, 2, 1))
sketch6.addConstraint(Sketcher.Constraint("Coincident", 2, 2, 3, 1))
sketch6.addConstraint(Sketcher.Constraint("Coincident", 3, 2, 4, 1))
sketch6.addConstraint(Sketcher.Constraint("Coincident", 4, 2, 5, 1))
sketch6.addConstraint(Sketcher.Constraint("Coincident", 5, 2, 0, 1))
sketch6.addConstraint(Sketcher.Constraint("Coincident", 6, 2, 7, 1))
sketch6.addConstraint(Sketcher.Constraint("Coincident", 7, 2, 8, 1))
sketch6.addConstraint(Sketcher.Constraint("Coincident", 8, 2, 9, 1))
sketch6.addConstraint(Sketcher.Constraint("Coincident", 9, 2, 10, 1))
sketch6.addConstraint(Sketcher.Constraint("Coincident", 10, 2, 11, 1))
sketch6.addConstraint(Sketcher.Constraint("Coincident", 11, 2, 6, 1))
sketch6.addConstraint(Sketcher.Constraint("Coincident", 12, 2, 13, 1))
sketch6.addConstraint(Sketcher.Constraint("Coincident", 13, 2, 14, 1))
sketch6.addConstraint(Sketcher.Constraint("Coincident", 14, 2, 15, 1))
sketch6.addConstraint(Sketcher.Constraint("Coincident", 15, 2, 16, 1))
sketch6.addConstraint(Sketcher.Constraint("Coincident", 16, 2, 17, 1))
sketch6.addConstraint(Sketcher.Constraint("Coincident", 17, 2, 12, 1))
sketch6.addConstraint(Sketcher.Constraint("Coincident", 18, 2, 19, 1))
sketch6.addConstraint(Sketcher.Constraint("Coincident", 19, 2, 20, 1))
sketch6.addConstraint(Sketcher.Constraint("Coincident", 20, 2, 21, 1))
sketch6.addConstraint(Sketcher.Constraint("Coincident", 21, 2, 22, 1))
sketch6.addConstraint(Sketcher.Constraint("Coincident", 22, 2, 23, 1))
sketch6.addConstraint(Sketcher.Constraint("Coincident", 23, 2, 18, 1))
sketch6.addConstraint(Sketcher.Constraint("Symmetric", 8, 2, 12, 2, -1, 1))
sketch6.addConstraint(Sketcher.Constraint("Symmetric", 9, 2, 13, 2, -1, 1))
sketch6.addConstraint(Sketcher.Constraint("Symmetric", 10, 2, 14, 2, -1, 1))
sketch6.addConstraint(Sketcher.Constraint("Symmetric", 11, 2, 15, 2, -1, 1))
sketch6.addConstraint(Sketcher.Constraint("Symmetric", 6, 2, 16, 2, -1, 1))
sketch6.addConstraint(Sketcher.Constraint("Symmetric", 7, 2, 17, 2, -1, 1))
sketch6.addConstraint(Sketcher.Constraint("Symmetric", 0, 2, 18, 2, -1, 1))
sketch6.addConstraint(Sketcher.Constraint("Symmetric", 1, 2, 19, 2, -1, 1))
sketch6.addConstraint(Sketcher.Constraint("Symmetric", 2, 2, 20, 2, -1, 1))
sketch6.addConstraint(Sketcher.Constraint("Symmetric", 3, 2, 21, 2, -1, 1))
sketch6.addConstraint(Sketcher.Constraint("Symmetric", 4, 2, 22, 2, -1, 1))
sketch6.addConstraint(Sketcher.Constraint("Symmetric", 5, 2, 23, 2, -1, 1))
sketch6.addConstraint(Sketcher.Constraint("Parallel", 0, 3))
sketch6.addConstraint(Sketcher.Constraint("Parallel", 1, 4))
sketch6.addConstraint(Sketcher.Constraint("Parallel", 2, 5))
sketch6.addConstraint(Sketcher.Constraint("Perpendicular", 4, 6))
sketch6.addConstraint(Sketcher.Constraint("Perpendicular", 5, 7))
sketch6.addConstraint(Sketcher.Constraint("Perpendicular", 3, 8))
sketch6.addConstraint(Sketcher.Constraint("Parallel", 6, 9))
sketch6.addConstraint(Sketcher.Constraint("Parallel", 7, 10))
sketch6.addConstraint(Sketcher.Constraint("Parallel", 8, 11))
sketch6.addConstraint(Sketcher.Constraint("Equal", 0, 1))
sketch6.addConstraint(Sketcher.Constraint("Equal", 1, 2))
sketch6.addConstraint(Sketcher.Constraint("Equal", 2, 3))
sketch6.addConstraint(Sketcher.Constraint("Equal", 5, 6))
sketch6.addConstraint(Sketcher.Constraint("Equal", 6, 7))
sketch6.addConstraint(Sketcher.Constraint("Equal", 7, 8))
sketch6.addConstraint(Sketcher.Constraint("Equal", 8, 9))
sketch6.addConstraint(Sketcher.Constraint("DistanceY", 1, 2, 14, 2, Q("29.454999 mm")))
sketch6.addConstraint(Sketcher.Constraint("DistanceX", 12, 2, 3, 2, Q("7.911501 mm")))
sketch6.addConstraint(Sketcher.Constraint("DistanceY", 18, 2, 15, 2, Q("7.911501 mm")))
sketch6.addConstraint(Sketcher.Constraint("Distance", 0, Q("7.222652 mm")))
sketch6.addConstraint(Sketcher.Constraint("DistanceX", -1, 1, 1, 2, Q("12.945019 mm")))
sketch6.addConstraint(Sketcher.Constraint("DistanceY", 2, 2, -1, 1, Q("10.049209 mm")))
sketch6.addConstraint(Sketcher.Constraint("DistanceX", -1, 1, 3, 2, Q("23.096038 mm")))
sketch6.addConstraint(Sketcher.Constraint("DistanceY", 4, 2, -1, 1, Q("22.495961 mm")))
pocket4 = doc.addObject("PartDesign::Pocket", "Pocket003")
body.addObject(pocket4)
pocket4.Profile = sketch6
pocket4.setExpression("Length", "Params.pocket4_length")
pocket4.Reversed = True

doc.recompute()
